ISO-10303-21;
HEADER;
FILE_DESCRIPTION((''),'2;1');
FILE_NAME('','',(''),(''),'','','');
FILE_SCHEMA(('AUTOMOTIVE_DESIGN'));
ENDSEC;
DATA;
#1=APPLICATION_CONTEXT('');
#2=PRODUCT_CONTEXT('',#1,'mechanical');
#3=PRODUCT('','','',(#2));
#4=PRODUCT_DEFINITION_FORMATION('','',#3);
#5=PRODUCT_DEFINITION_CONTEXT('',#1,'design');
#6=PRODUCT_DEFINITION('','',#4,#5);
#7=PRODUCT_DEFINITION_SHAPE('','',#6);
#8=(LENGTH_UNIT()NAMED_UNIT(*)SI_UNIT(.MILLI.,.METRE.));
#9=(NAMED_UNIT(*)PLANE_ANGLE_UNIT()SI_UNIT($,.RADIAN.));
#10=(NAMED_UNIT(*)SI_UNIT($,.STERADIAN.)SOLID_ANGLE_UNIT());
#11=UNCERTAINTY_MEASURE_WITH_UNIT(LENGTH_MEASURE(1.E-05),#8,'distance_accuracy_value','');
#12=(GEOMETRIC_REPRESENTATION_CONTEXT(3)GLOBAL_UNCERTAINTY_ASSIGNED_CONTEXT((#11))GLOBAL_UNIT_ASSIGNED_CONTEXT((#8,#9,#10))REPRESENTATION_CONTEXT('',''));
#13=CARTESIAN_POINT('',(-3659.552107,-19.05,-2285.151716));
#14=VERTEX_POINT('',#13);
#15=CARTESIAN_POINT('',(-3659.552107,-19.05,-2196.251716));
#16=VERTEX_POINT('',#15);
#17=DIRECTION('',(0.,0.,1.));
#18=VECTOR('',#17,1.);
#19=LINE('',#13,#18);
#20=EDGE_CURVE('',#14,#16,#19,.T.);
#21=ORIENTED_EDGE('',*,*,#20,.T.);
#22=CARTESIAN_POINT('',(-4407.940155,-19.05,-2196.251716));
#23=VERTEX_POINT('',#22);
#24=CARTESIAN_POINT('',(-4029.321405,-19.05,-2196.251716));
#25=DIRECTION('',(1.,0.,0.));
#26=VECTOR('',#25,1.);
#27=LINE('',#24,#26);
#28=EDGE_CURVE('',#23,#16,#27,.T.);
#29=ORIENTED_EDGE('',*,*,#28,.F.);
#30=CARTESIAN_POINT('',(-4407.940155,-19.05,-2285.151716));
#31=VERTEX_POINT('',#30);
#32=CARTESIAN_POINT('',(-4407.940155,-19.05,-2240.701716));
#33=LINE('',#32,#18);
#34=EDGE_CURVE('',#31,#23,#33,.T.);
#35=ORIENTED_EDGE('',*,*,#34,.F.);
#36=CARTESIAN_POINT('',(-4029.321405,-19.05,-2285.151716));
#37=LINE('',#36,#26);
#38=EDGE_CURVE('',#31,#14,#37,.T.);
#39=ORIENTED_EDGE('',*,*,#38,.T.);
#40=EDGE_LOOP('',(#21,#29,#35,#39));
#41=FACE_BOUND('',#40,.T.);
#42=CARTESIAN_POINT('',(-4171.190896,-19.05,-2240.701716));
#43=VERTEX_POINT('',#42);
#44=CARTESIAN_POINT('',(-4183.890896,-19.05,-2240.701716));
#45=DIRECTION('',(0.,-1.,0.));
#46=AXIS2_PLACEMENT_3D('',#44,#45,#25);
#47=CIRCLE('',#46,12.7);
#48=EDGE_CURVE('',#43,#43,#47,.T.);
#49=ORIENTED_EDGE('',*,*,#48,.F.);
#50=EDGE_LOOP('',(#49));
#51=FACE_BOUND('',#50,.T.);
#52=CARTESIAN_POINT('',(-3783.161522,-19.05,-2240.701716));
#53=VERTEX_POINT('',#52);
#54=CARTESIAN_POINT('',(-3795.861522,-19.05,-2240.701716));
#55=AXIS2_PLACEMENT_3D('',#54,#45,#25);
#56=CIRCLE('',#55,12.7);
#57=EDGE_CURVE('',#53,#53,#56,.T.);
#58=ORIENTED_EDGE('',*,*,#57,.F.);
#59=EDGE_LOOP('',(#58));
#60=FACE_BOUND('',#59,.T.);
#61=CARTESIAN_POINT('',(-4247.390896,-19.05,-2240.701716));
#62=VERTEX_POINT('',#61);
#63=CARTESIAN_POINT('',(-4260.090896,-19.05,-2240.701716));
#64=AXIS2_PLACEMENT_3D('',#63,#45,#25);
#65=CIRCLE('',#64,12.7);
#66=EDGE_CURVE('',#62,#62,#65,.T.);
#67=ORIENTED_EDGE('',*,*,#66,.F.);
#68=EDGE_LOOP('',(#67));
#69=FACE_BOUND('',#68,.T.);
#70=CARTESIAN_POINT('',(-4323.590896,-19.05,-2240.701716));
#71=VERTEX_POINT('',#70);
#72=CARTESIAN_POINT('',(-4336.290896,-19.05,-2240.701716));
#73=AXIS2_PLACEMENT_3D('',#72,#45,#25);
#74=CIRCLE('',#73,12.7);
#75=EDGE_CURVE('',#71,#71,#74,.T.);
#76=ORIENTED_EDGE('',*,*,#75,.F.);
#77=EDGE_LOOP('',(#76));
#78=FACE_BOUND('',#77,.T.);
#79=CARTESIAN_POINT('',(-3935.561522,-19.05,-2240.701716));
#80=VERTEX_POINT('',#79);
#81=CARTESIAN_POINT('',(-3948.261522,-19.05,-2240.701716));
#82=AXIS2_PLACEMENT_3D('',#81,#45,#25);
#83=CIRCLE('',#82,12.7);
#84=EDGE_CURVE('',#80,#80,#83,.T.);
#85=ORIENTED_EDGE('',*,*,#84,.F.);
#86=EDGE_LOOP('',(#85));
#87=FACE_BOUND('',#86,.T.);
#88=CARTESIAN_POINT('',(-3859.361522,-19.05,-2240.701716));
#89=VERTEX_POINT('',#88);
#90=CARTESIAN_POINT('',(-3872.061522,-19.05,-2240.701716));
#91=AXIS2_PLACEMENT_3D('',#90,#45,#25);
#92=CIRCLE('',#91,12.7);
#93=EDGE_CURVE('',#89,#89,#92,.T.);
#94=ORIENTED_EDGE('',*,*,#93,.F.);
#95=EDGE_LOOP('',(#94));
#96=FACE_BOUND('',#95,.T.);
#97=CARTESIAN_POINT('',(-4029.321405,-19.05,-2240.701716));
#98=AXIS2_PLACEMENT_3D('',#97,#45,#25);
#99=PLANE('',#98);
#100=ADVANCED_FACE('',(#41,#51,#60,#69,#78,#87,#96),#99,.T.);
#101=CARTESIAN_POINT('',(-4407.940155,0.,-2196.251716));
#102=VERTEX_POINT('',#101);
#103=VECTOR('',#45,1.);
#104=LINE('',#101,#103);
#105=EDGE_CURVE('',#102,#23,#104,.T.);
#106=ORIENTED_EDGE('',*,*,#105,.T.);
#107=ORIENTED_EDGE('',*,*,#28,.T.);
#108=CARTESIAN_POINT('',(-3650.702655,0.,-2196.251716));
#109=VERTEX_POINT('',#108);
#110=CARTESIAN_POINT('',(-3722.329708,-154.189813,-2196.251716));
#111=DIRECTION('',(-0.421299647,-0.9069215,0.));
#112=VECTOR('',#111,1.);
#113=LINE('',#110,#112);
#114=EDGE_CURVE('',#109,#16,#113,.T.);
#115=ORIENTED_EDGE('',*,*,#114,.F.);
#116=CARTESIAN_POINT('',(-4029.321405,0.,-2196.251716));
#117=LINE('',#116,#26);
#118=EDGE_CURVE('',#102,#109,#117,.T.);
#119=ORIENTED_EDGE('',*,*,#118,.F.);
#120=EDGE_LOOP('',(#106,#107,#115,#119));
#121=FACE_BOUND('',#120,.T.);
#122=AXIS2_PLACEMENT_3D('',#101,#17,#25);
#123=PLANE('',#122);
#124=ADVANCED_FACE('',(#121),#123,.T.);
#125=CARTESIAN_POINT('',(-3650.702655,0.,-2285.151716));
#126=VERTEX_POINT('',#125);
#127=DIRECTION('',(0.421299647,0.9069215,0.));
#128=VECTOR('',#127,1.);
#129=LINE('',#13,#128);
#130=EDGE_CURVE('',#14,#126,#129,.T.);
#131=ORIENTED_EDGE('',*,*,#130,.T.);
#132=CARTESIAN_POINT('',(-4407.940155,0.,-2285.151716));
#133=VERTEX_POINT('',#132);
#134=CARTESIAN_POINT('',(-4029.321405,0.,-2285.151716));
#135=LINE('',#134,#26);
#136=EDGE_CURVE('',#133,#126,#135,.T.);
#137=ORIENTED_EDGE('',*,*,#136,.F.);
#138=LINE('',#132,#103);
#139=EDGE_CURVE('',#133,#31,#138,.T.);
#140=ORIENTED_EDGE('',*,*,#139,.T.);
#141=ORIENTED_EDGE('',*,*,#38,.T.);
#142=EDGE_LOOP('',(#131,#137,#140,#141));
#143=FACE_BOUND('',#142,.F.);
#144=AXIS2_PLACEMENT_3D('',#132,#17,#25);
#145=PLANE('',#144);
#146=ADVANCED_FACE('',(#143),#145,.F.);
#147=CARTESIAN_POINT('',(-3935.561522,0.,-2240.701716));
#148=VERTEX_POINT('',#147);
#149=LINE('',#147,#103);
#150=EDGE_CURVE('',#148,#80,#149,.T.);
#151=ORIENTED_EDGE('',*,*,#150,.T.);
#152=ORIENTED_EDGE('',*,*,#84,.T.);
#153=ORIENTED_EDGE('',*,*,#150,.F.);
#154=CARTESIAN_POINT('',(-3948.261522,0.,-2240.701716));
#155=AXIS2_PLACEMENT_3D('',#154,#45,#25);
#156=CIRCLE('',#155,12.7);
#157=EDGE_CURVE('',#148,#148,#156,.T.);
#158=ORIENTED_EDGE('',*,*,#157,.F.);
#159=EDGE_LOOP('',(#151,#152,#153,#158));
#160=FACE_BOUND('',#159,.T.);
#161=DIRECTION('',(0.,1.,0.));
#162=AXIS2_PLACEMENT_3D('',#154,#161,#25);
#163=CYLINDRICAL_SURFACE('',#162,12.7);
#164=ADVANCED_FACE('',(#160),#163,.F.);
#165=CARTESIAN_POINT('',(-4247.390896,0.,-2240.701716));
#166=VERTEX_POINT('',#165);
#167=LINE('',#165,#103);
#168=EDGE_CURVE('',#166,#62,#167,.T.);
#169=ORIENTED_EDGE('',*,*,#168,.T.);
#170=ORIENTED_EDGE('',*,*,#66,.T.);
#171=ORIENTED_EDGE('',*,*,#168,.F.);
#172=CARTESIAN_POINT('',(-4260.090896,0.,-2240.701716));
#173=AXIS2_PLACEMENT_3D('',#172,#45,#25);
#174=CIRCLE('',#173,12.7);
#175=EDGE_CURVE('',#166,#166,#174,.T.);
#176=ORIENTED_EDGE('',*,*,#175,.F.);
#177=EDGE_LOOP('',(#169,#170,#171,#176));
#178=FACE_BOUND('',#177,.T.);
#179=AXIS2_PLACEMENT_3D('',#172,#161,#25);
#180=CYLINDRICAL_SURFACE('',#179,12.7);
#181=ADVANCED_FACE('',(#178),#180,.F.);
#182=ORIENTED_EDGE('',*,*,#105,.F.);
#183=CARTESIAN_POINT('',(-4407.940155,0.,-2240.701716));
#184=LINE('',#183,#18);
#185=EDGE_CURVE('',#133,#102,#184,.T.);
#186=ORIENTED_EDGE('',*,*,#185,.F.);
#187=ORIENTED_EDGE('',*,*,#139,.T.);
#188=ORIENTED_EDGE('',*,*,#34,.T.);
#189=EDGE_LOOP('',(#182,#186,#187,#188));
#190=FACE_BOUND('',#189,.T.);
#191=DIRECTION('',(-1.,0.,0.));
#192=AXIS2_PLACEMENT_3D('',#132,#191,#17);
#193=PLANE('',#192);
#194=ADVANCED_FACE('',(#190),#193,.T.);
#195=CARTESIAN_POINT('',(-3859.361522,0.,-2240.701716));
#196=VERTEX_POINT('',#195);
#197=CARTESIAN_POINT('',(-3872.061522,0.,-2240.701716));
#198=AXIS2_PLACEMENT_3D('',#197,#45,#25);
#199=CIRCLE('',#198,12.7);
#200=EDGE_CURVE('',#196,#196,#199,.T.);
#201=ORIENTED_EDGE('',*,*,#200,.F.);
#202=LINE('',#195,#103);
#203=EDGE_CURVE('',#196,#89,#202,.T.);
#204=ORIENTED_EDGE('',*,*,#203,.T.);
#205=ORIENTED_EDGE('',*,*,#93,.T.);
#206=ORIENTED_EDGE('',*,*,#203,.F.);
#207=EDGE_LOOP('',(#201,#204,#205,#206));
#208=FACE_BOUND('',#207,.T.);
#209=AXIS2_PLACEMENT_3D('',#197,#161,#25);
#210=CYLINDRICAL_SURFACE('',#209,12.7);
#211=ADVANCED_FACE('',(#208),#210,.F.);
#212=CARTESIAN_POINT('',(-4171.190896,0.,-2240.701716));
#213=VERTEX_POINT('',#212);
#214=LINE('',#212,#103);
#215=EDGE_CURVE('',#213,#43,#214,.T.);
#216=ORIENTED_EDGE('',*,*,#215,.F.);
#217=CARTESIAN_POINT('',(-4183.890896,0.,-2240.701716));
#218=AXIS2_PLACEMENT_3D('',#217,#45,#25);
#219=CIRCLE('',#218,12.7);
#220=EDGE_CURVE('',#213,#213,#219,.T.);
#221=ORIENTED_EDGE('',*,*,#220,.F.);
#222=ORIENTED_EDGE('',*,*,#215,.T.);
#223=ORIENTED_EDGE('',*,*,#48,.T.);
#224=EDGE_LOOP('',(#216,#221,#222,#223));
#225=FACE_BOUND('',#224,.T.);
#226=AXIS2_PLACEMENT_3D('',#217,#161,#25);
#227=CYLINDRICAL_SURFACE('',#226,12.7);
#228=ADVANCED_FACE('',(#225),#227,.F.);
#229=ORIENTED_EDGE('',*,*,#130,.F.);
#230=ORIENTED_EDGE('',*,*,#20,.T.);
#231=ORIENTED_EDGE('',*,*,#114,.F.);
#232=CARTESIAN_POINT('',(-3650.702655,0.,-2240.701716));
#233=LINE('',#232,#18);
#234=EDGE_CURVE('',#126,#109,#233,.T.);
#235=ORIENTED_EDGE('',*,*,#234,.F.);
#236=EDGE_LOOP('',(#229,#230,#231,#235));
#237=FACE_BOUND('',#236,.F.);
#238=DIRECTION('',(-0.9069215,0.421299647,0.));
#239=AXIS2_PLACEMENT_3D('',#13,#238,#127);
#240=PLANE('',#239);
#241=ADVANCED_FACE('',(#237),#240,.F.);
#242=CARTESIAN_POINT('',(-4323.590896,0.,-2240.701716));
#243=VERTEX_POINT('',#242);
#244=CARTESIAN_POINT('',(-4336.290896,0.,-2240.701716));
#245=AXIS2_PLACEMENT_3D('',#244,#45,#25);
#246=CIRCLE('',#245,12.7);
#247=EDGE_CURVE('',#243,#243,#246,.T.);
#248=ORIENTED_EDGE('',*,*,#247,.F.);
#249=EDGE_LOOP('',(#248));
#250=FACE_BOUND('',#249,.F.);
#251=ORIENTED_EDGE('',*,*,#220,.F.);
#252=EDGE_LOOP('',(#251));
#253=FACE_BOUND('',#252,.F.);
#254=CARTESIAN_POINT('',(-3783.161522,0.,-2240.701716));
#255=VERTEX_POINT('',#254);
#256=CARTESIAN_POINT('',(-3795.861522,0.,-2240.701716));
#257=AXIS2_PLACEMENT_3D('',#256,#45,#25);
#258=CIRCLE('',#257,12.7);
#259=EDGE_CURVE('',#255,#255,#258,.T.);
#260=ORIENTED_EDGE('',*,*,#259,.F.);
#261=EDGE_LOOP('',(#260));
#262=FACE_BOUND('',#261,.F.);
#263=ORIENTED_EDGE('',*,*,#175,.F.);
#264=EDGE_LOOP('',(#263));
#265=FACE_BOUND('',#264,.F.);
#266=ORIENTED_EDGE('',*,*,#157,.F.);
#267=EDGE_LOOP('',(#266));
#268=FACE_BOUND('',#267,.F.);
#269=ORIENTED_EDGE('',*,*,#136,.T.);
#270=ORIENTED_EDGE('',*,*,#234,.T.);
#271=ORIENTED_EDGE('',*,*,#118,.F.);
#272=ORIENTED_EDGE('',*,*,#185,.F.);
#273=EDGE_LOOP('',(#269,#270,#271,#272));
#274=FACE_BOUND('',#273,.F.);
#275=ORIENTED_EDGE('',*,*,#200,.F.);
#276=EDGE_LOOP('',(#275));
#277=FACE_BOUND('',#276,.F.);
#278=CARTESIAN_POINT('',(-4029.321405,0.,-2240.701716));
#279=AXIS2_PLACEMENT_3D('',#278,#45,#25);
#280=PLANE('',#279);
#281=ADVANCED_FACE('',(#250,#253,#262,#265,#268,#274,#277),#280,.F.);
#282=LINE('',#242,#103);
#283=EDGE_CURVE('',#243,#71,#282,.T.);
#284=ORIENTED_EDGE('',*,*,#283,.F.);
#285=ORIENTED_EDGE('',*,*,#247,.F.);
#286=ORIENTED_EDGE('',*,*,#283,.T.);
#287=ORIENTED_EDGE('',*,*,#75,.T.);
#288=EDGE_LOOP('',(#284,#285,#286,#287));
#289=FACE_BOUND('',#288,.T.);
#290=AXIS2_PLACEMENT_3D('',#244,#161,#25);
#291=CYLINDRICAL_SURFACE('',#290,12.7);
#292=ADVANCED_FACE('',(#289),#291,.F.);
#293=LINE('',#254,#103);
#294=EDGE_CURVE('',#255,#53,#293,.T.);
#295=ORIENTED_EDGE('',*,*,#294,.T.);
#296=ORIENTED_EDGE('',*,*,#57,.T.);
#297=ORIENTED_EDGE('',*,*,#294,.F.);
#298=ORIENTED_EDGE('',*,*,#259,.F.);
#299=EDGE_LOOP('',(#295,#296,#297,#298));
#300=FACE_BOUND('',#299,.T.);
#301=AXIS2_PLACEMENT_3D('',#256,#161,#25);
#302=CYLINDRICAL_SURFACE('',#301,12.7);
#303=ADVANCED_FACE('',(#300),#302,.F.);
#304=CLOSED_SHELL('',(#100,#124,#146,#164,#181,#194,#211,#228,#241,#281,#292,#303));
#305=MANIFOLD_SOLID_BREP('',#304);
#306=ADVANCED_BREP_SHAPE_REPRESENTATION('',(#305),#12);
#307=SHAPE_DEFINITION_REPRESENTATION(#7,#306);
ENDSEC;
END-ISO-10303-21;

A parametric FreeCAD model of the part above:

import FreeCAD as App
import Part
import Sketcher
from FreeCAD import Vector
Q = App.Units.Quantity

doc = App.newDocument("Part")
body = doc.addObject("PartDesign::Body", "Body")

# Sketch on XZ plane
sketch1 = body.newObject("Sketcher::SketchObject", "Sketch")
sketch1.AttachmentSupport = (doc.getObject("XZ_Plane"), [""])
sketch1.MapMode = "FlatFace"
sketch1.addGeometry([
    Part.LineSegment(Vector(-4408, -2196, 0), Vector(-4408, -2285, 0)),  # 0
    Part.LineSegment(Vector(-4408, -2285, 0), Vector(-3651, -2285, 0)),  # 1
    Part.LineSegment(Vector(-3651, -2285, 0), Vector(-3651, -2196, 0)),  # 2
    Part.LineSegment(Vector(-3651, -2196, 0), Vector(-4408, -2196, 0)),  # 3
    Part.Circle(Vector(-4336, -2241, 0), Vector(0, 0, 1), 13),  # 4
    Part.Circle(Vector(-4260, -2241, 0), Vector(0, 0, 1), 13),  # 5
    Part.Circle(Vector(-4184, -2241, 0), Vector(0, 0, 1), 13),  # 6
    Part.Circle(Vector(-3948, -2241, 0), Vector(0, 0, 1), 13),  # 7
    Part.Circle(Vector(-3872, -2241, 0), Vector(0, 0, 1), 13),  # 8
    Part.Circle(Vector(-3796, -2241, 0), Vector(0, 0, 1), 13),  # 9
], False)
sketch1.addConstraint([
    Sketcher.Constraint("Coincident", 0, 2, 1, 1),
    Sketcher.Constraint("Coincident", 1, 2, 2, 1),
    Sketcher.Constraint("Coincident", 2, 2, 3, 1),
    Sketcher.Constraint("Coincident", 3, 2, 0, 1),
    Sketcher.Constraint("Vertical", 0),
    Sketcher.Constraint("Horizontal", 1),
    Sketcher.Constraint("Vertical", 2),
    Sketcher.Constraint("Horizontal", 3),
    Sketcher.Constraint("Equal", 4, 5),
    Sketcher.Constraint("Equal", 5, 6),
    Sketcher.Constraint("Equal", 6, 7),
    Sketcher.Constraint("Equal", 7, 8),
    Sketcher.Constraint("Equal", 8, 9),
    Sketcher.Constraint("Horizontal", 4, 3, 5, 3),
    Sketcher.Constraint("Horizontal", 5, 3, 6, 3),
    Sketcher.Constraint("Horizontal", 6, 3, 7, 3),
    Sketcher.Constraint("Horizontal", 7, 3, 8, 3),
    Sketcher.Constraint("Horizontal", 8, 3, 9, 3),
    Sketcher.Constraint("Diameter", 4, Q("1 in")),
    Sketcher.Constraint("DistanceY", 0, 2, 0, 1, Q("3.5 in")),
    Sketcher.Constraint("DistanceX", 4, 3, 5, 3, Q("3 in")),
    Sketcher.Constraint("DistanceX", 5, 3, 6, 3, Q("3 in")),
    Sketcher.Constraint("DistanceX", 7, 3, 8, 3, Q("3 in")),
    Sketcher.Constraint("DistanceX", 8, 3, 9, 3, Q("3 in")),
    Sketcher.Constraint("DistanceX", 1, 1, 1, 2, Q("29.8125 in")),
    Sketcher.Constraint("DistanceY", 0, 2, 4, 3, Q("1.75 in")),
    Sketcher.Constraint("DistanceX", 7, 3, -1, 1, Q("3948.261522 mm")),
    Sketcher.Constraint("DistanceX", 0, 2, 4, 3, Q("71.649259 mm")),
    Sketcher.Constraint("DistanceX", 4, 3, -1, 1, Q("4336.290896 mm")),
    Sketcher.Constraint("DistanceY", 4, 3, -1, 1, Q("2240.701716 mm")),
])
pad1 = body.newObject("PartDesign::Pad", "Pad")
pad1.Profile = sketch1
pad1.Length = Q("0.75 in")

# Sketch on XY plane
sketch2 = body.newObject("Sketcher::SketchObject", "Sketch001")
sketch2.AttachmentSupport = (doc.getObject("XY_Plane"), [""])
sketch2.MapMode = "FlatFace"
sketch2.AttachmentOffset = App.Placement(Vector(0, 0, -2285.151716), App.Rotation())
sketch2.addGeometry([
    Part.LineSegment(Vector(-3660, -19, 0), Vector(-3651, 0, 0)),
    Part.LineSegment(Vector(-3651, 0, 0), Vector(-3651, -19, 0)),
    Part.LineSegment(Vector(-3651, -19, 0), Vector(-3660, -19, 0)),
], False)
sketch2.addConstraint([
    Sketcher.Constraint("Coincident", 0, 2, 1, 1),
    Sketcher.Constraint("Coincident", 1, 2, 2, 1),
    Sketcher.Constraint("Coincident", 2, 2, 0, 1),
    Sketcher.Constraint("Vertical", 1),
    Sketcher.Constraint("Horizontal", 2),
    Sketcher.Constraint("PointOnObject", 0, 2, -1),
    Sketcher.Constraint("DistanceY", 1, 2, 1, 1, Q("0.75 in")),
    Sketcher.Constraint("DistanceX", 2, 2, 2, 1, Q("8.849452 mm")),
    Sketcher.Constraint("DistanceX", 0, 2, -1, 1, Q("3650.702655 mm")),
])
pocket1 = body.newObject("PartDesign::Pocket", "Pocket")
pocket1.Profile = sketch2
pocket1.Type = "ThroughAll"
pocket1.Reversed = True

doc.recompute()
